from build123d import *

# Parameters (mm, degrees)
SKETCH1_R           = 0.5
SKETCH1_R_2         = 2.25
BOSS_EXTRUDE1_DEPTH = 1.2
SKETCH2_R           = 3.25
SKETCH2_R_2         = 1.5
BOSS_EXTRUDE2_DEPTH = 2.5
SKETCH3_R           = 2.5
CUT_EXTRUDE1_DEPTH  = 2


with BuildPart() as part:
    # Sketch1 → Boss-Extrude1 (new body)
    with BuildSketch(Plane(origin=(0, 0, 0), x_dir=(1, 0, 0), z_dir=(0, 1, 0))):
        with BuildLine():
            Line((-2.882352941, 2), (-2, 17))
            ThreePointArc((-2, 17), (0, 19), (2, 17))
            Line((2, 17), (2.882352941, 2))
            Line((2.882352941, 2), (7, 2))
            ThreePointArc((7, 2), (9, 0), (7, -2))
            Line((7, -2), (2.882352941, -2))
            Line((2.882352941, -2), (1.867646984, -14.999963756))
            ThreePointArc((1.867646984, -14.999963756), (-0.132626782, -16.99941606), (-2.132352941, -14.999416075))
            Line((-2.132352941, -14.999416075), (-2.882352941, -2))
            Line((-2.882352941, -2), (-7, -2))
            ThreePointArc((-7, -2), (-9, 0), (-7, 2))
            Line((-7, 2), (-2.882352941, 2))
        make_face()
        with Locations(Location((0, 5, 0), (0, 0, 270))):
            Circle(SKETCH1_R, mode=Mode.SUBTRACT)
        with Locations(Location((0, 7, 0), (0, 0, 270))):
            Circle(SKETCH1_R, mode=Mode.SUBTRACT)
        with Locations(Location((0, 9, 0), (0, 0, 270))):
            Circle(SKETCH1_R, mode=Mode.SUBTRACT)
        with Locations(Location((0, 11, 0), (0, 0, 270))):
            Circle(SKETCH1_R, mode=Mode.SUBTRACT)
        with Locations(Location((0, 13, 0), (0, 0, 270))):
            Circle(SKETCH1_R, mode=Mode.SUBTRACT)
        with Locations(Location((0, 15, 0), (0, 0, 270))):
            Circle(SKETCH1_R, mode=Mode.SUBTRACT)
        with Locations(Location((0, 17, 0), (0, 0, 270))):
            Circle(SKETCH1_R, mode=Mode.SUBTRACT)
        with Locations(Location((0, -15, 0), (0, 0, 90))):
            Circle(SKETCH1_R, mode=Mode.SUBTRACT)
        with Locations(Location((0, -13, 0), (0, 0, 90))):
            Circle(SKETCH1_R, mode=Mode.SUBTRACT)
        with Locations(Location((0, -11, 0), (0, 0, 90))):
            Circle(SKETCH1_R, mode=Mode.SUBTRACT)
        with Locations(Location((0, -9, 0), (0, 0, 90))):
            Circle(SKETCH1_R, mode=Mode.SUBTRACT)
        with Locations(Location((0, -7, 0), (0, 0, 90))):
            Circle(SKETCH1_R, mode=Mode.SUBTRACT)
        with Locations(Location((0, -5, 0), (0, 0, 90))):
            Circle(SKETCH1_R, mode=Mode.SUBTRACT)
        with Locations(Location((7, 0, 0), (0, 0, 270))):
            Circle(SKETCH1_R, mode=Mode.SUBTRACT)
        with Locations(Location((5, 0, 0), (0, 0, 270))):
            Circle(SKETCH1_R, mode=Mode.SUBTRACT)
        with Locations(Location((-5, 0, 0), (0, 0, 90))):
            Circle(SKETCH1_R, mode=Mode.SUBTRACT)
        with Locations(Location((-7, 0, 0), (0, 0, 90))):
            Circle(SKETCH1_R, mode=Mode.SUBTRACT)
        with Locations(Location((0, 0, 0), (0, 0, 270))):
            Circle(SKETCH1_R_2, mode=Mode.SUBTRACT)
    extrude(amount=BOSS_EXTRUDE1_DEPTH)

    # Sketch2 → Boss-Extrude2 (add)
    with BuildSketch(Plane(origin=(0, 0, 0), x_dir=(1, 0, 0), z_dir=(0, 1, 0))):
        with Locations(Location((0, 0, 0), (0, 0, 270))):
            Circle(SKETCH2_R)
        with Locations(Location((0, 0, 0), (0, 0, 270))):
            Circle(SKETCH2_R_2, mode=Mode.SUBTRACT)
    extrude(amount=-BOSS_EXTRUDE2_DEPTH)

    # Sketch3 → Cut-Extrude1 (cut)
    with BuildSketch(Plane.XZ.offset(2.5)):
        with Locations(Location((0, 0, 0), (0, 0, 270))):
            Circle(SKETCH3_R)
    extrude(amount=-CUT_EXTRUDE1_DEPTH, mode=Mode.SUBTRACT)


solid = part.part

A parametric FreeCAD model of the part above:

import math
import FreeCAD as App
import Part
import Sketcher

V = App.Vector

doc = App.newDocument("Part")
body = doc.addObject("PartDesign::Body", "Body")

sketch1 = body.newObject("Sketcher::SketchObject", "Sketch")
sketch1.AttachmentSupport = (doc.getObject("XZ_Plane"), [""])
sketch1.MapMode = "FlatFace"
sketch1.addGeometry(Part.LineSegment(V(-2, -17, 0), V(-2.9, -2, 0)), False)
sketch1.addGeometry(Part.LineSegment(V(-2.9, -2, 0), V(-7, -2, 0)), False)
sketch1.addGeometry(Part.ArcOfCircle(Part.Circle(V(-7, 0, 0), V(0, 0, 1), 2), math.radians(90), math.radians(270)), False)
sketch1.addGeometry(Part.LineSegment(V(-7, 2, 0), V(-2.9, 2, 0)), False)
sketch1.addGeometry(Part.LineSegment(V(-2.9, 2, 0), V(-2.1, 15, 0)), False)
sketch1.addGeometry(Part.ArcOfCircle(Part.Circle(V(-0.1, 15, 0), V(0, 0, 1), 2), math.radians(0), math.radians(180)), False)
sketch1.addGeometry(Part.LineSegment(V(1.9, 15, 0), V(2.9, 2, 0)), False)
sketch1.addGeometry(Part.LineSegment(V(2.9, 2, 0), V(7, 2, 0)), False)
sketch1.addGeometry(Part.ArcOfCircle(Part.Circle(V(7, 0, 0), V(0, 0, 1), 2), math.radians(-90), math.radians(90)), False)
sketch1.addGeometry(Part.LineSegment(V(7, -2, 0), V(2.9, -2, 0)), False)
sketch1.addGeometry(Part.LineSegment(V(2.9, -2, 0), V(2, -17, 0)), False)
sketch1.addGeometry(Part.ArcOfCircle(Part.Circle(V(0, -17, 0), V(0, 0, 1), 2), math.radians(180), math.radians(360)), False)
sketch1.addGeometry(Part.Circle(V(7, 0, 0), V(0, 0, 1), 0.5), False)
sketch1.addGeometry(Part.Circle(V(5, 0, 0), V(0, 0, 1), 0.5), False)
sketch1.addGeometry(Part.Circle(V(0, 15, 0), V(0, 0, 1), 0.5), False)
sketch1.addGeometry(Part.Circle(V(0, 13, 0), V(0, 0, 1), 0.5), False)
sketch1.addGeometry(Part.Circle(V(0, 11, 0), V(0, 0, 1), 0.5), False)
sketch1.addGeometry(Part.Circle(V(0, 9, 0), V(0, 0, 1), 0.5), False)
sketch1.addGeometry(Part.Circle(V(0, 7, 0), V(0, 0, 1), 0.5), False)
sketch1.addGeometry(Part.Circle(V(0, 5, 0), V(0, 0, 1), 0.5), False)
sketch1.addGeometry(Part.Circle(V(0, 0, 0), V(0, 0, 1), 2.2), False)
sketch1.addGeometry(Part.Circle(V(-5, 0, 0), V(0, 0, 1), 0.5), False)
sketch1.addGeometry(Part.Circle(V(-7, 0, 0), V(0, 0, 1), 0.5), False)
sketch1.addGeometry(Part.Circle(V(0, -5, 0), V(0, 0, 1), 0.5), False)
sketch1.addGeometry(Part.Circle(V(0, -7, 0), V(0, 0, 1), 0.5), False)
sketch1.addGeometry(Part.Circle(V(0, -9, 0), V(0, 0, 1), 0.5), False)
sketch1.addGeometry(Part.Circle(V(0, -11, 0), V(0, 0, 1), 0.5), False)
sketch1.addGeometry(Part.Circle(V(0, -13, 0), V(0, 0, 1), 0.5), False)
sketch1.addGeometry(Part.Circle(V(0, -15, 0), V(0, 0, 1), 0.5), False)
sketch1.addGeometry(Part.Circle(V(0, -17, 0), V(0, 0, 1), 0.5), False)
sketch1.addConstraint(Sketcher.Constraint("Coincident", 0, 2, 1, 1))
sketch1.addConstraint(Sketcher.Constraint("Tangent", 1, 2, 2, 2))
sketch1.addConstraint(Sketcher.Constraint("Tangent", 2, 1, 3, 1))
sketch1.addConstraint(Sketcher.Constraint("Coincident", 3, 2, 4, 1))
sketch1.addConstraint(Sketcher.Constraint("Coincident", 4, 2, 5, 2))
sketch1.addConstraint(Sketcher.Constraint("Coincident", 5, 1, 6, 1))
sketch1.addConstraint(Sketcher.Constraint("Coincident", 6, 2, 7, 1))
sketch1.addConstraint(Sketcher.Constraint("Tangent", 7, 2, 8, 2))
sketch1.addConstraint(Sketcher.Constraint("Tangent", 8, 1, 9, 1))
sketch1.addConstraint(Sketcher.Constraint("Coincident", 9, 2, 10, 1))
sketch1.addConstraint(Sketcher.Constraint("Coincident", 10, 2, 11, 2))
sketch1.addConstraint(Sketcher.Constraint("Coincident", 11, 1, 0, 1))
sketch1.addConstraint(Sketcher.Constraint("Horizontal", 1))
sketch1.addConstraint(Sketcher.Constraint("Horizontal", 3))
sketch1.addConstraint(Sketcher.Constraint("Horizontal", 7))
sketch1.addConstraint(Sketcher.Constraint("Horizontal", 9))
sketch1.addConstraint(Sketcher.Constraint("Coincident", 20, 3, -1, 1))
sketch1.addConstraint(Sketcher.Constraint("Coincident", 12, 3, 8, 3))
sketch1.addConstraint(Sketcher.Constraint("Coincident", 22, 3, 2, 3))
sketch1.addConstraint(Sketcher.Constraint("Coincident", 29, 3, 11, 3))
sketch1.addConstraint(Sketcher.Constraint("Equal", 2, 5))
sketch1.addConstraint(Sketcher.Constraint("Equal", 5, 8))
sketch1.addConstraint(Sketcher.Constraint("Equal", 8, 11))
sketch1.addConstraint(Sketcher.Constraint("Equal", 12, 13))
sketch1.addConstraint(Sketcher.Constraint("Equal", 13, 14))
sketch1.addConstraint(Sketcher.Constraint("Equal", 14, 15))
sketch1.addConstraint(Sketcher.Constraint("Equal", 15, 16))
sketch1.addConstraint(Sketcher.Constraint("Equal", 16, 17))
sketch1.addConstraint(Sketcher.Constraint("Equal", 17, 18))
sketch1.addConstraint(Sketcher.Constraint("Equal", 18, 19))
sketch1.addConstraint(Sketcher.Constraint("Equal", 19, 21))
sketch1.addConstraint(Sketcher.Constraint("Equal", 21, 22))
sketch1.addConstraint(Sketcher.Constraint("Equal", 22, 23))
sketch1.addConstraint(Sketcher.Constraint("Equal", 23, 24))
sketch1.addConstraint(Sketcher.Constraint("Equal", 24, 25))
sketch1.addConstraint(Sketcher.Constraint("Equal", 25, 26))
sketch1.addConstraint(Sketcher.Constraint("Equal", 26, 27))
sketch1.addConstraint(Sketcher.Constraint("Equal", 27, 28))
sketch1.addConstraint(Sketcher.Constraint("Equal", 28, 29))
sketch1.addConstraint(Sketcher.Constraint("Symmetric", 2, 3, 8, 3, -1, 1))
sketch1.addConstraint(Sketcher.Constraint("Symmetric", 13, 3, 21, 3, -1, 1))
sketch1.addConstraint(Sketcher.Constraint("Symmetric", 19, 3, 23, 3, -1, 1))
sketch1.addConstraint(Sketcher.Constraint("Symmetric", 18, 3, 24, 3, -1, 1))
sketch1.addConstraint(Sketcher.Constraint("Symmetric", 17, 3, 25, 3, -1, 1))
sketch1.addConstraint(Sketcher.Constraint("Symmetric", 16, 3, 26, 3, -1, 1))
sketch1.addConstraint(Sketcher.Constraint("Symmetric", 15, 3, 27, 3, -1, 1))
sketch1.addConstraint(Sketcher.Constraint("Symmetric", 14, 3, 28, 3, -1, 1))
sketch1.addConstraint(Sketcher.Constraint("Symmetric", 3, 2, 6, 2, -2))
sketch1.addConstraint(Sketcher.Constraint("Symmetric", 10, 2, 11, 1, -2))
sketch1.addConstraint(Sketcher.Constraint("PointOnObject", 13, 3, -1))
sketch1.addConstraint(Sketcher.Constraint("PointOnObject", 14, 3, -2))
sketch1.addConstraint(Sketcher.Constraint("PointOnObject", 15, 3, -2))
sketch1.addConstraint(Sketcher.Constraint("PointOnObject", 16, 3, -2))
sketch1.addConstraint(Sketcher.Constraint("PointOnObject", 17, 3, -2))
sketch1.addConstraint(Sketcher.Constraint("PointOnObject", 18, 3, -2))
sketch1.addConstraint(Sketcher.Constraint("PointOnObject", 19, 3, -2))
sketch1.addConstraint(Sketcher.Constraint("Horizontal", 5, 3, 4, 2))
sketch1.addConstraint(Sketcher.Constraint("Horizontal", 29, 3, 10, 2))
sketch1.addConstraint(Sketcher.Constraint("Vertical", 0, 2, 3, 2))
sketch1.addConstraint(Sketcher.Constraint("Vertical", 6, 2, 9, 2))
sketch1.addConstraint(Sketcher.Constraint("Diameter", 12, 1.0))
sketch1.addConstraint(Sketcher.Constraint("Radius", 2, 2.0))
sketch1.addConstraint(Sketcher.Constraint("Diameter", 20, 4.5))
sketch1.addConstraint(Sketcher.Constraint("DistanceX", 2, 3, -1, 1, 7.0))
sketch1.addConstraint(Sketcher.Constraint("DistanceY", 11, 3, -1, 1, 17.0))
sketch1.addConstraint(Sketcher.Constraint("DistanceX", -1, 1, 13, 3, 5.0))
sketch1.addConstraint(Sketcher.Constraint("DistanceY", -1, 1, 14, 3, 15.0))
sketch1.addConstraint(Sketcher.Constraint("DistanceY", -1, 1, 15, 3, 13.0))
sketch1.addConstraint(Sketcher.Constraint("DistanceY", -1, 1, 16, 3, 11.0))
sketch1.addConstraint(Sketcher.Constraint("DistanceY", -1, 1, 17, 3, 9.0))
sketch1.addConstraint(Sketcher.Constraint("DistanceY", -1, 1, 18, 3, 7.0))
sketch1.addConstraint(Sketcher.Constraint("DistanceY", -1, 1, 19, 3, 5.0))
sketch1.addConstraint(Sketcher.Constraint("Distance", 0, 15.025929))
sketch1.addConstraint(Sketcher.Constraint("Distance", 4, 13.021034))
sketch1.addConstraint(Sketcher.Constraint("Distance", 6, 13.039505))
sketch1.addConstraint(Sketcher.Constraint("DistanceX", 5, 3, -1, 1, 0.132353))
pad1 = body.newObject("PartDesign::Pad", "Pad")
pad1.Profile = sketch1
pad1.Length = 1.2
pad1.Reversed = True

sketch2 = body.newObject("Sketcher::SketchObject", "Sketch001")
sketch2.AttachmentSupport = (doc.getObject("XZ_Plane"), [""])
sketch2.MapMode = "FlatFace"
sketch2.addGeometry(Part.Circle(V(0, 0, 0), V(0, 0, 1), 3.2), False)
sketch2.addGeometry(Part.Circle(V(0, 0, 0), V(0, 0, 1), 1.5), False)
sketch2.addConstraint(Sketcher.Constraint("Coincident", 0, 3, -1, 1))
sketch2.addConstraint(Sketcher.Constraint("Coincident", 1, 3, -1, 1))
sketch2.addConstraint(Sketcher.Constraint("Diameter", 1, 3.0))
sketch2.addConstraint(Sketcher.Constraint("Diameter", 0, 6.5))
pad2 = body.newObject("PartDesign::Pad", "Pad001")
pad2.Profile = sketch2
pad2.Length = 2.5

sketch3 = body.newObject("Sketcher::SketchObject", "Sketch002")
sketch3.AttachmentSupport = (doc.getObject("XZ_Plane"), [""])
sketch3.MapMode = "FlatFace"
sketch3.AttachmentOffset = App.Placement(V(0, 0, 2.5), App.Rotation())
sketch3.addGeometry(Part.Circle(V(0, 0, 0), V(0, 0, 1), 2.5), False)
sketch3.addConstraint(Sketcher.Constraint("Coincident", 0, 3, -1, 1))
sketch3.addConstraint(Sketcher.Constraint("Diameter", 0, 5.0))
pocket1 = body.newObject("PartDesign::Pocket", "Pocket")
pocket1.Profile = sketch3
pocket1.Length = 2

doc.recompute()
